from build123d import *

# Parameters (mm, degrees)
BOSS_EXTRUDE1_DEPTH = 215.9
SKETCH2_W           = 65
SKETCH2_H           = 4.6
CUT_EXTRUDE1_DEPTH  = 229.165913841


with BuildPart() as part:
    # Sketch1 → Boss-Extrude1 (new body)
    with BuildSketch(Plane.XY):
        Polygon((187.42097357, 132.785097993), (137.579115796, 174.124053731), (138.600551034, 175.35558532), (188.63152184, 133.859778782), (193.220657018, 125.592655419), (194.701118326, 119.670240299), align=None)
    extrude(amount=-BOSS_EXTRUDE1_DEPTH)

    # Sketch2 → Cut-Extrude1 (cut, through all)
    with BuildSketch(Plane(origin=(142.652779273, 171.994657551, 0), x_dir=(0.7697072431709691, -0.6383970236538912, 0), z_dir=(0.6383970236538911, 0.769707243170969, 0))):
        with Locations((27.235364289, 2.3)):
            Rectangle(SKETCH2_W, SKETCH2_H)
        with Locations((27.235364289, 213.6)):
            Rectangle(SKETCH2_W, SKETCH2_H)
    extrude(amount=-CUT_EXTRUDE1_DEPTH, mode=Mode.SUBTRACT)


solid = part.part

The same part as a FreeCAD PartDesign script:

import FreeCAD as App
import Part
import Sketcher
from FreeCAD import Vector
Q = App.Units.Quantity

doc = App.newDocument("Part")
params = doc.addObject("Spreadsheet::Sheet", "Params")
for row, (alias, value) in enumerate([
    ("sketch1_length", "15 mm"),
    ("sketch1_length2", "65 mm"),
    ("sketch1_length3", "1.6 mm"),
    ("pad1_length", "215.9 mm"),
    ("sketch2_width", "65 mm"),
    ("sketch2_height", "4.6 mm"),
], start=1):
    params.set(f"A{row}", alias)
    params.set(f"B{row}", "=" + value)
    params.setAlias(f"B{row}", alias)

body = doc.addObject("PartDesign::Body", "Body")

# Sketch on XY plane
sketch1 = body.newObject("Sketcher::SketchObject", "Sketch")
sketch1.AttachmentSupport = (doc.getObject("XY_Plane"), [""])
sketch1.MapMode = "FlatFace"
sketch1.addGeometry(Part.LineSegment(Vector(137.579116, 174.124054, 0), Vector(187.420974, 132.785098, 0)), False)
sketch1.addGeometry(Part.LineSegment(Vector(187.420974, 132.785098, 0), Vector(194.701118, 119.67024, 0)), False)
sketch1.addGeometry(Part.LineSegment(Vector(194.701118, 119.67024, 0), Vector(193.220657, 125.592655, 0)), False)
sketch1.addGeometry(Part.LineSegment(Vector(193.220657, 125.592655, 0), Vector(188.631522, 133.859779, 0)), False)
sketch1.addGeometry(Part.LineSegment(Vector(188.631522, 133.859779, 0), Vector(138.600551, 175.355585, 0)), False)
sketch1.addGeometry(Part.LineSegment(Vector(138.600551, 175.355585, 0), Vector(137.579116, 174.124054, 0)), False)
sketch1.addConstraint(Sketcher.Constraint("Coincident", 0, 2, 1, 1))
sketch1.addConstraint(Sketcher.Constraint("Coincident", 1, 2, 2, 1))
sketch1.addConstraint(Sketcher.Constraint("Coincident", 2, 2, 3, 1))
sketch1.addConstraint(Sketcher.Constraint("Coincident", 3, 2, 4, 1))
sketch1.addConstraint(Sketcher.Constraint("Coincident", 4, 2, 5, 1))
sketch1.addConstraint(Sketcher.Constraint("Coincident", 5, 2, 0, 1))
sketch1.addConstraint(Sketcher.Constraint("Parallel", 1, 3))
sketch1.addConstraint(Sketcher.Constraint("Parallel", 0, 4))
sketch1.addConstraint(Sketcher.Constraint("Perpendicular", 4, 5))
sketch1.addConstraint(Sketcher.Constraint("Distance", 1, Q("15 mm")))
sketch1.addConstraint(Sketcher.Constraint("Distance", 4, Q("65 mm")))
sketch1.addConstraint(Sketcher.Constraint("Distance", 5, Q("1.6 mm")))
sketch1.addConstraint(Sketcher.Constraint("DistanceY", 2, 2, 5, 2, Q("48.531398 mm")))
sketch1.addConstraint(Sketcher.Constraint("Distance", 2, Q("6.104651 mm")))
sketch1.addConstraint(Sketcher.Constraint("DistanceX", -1, 1, 1, 2, Q("194.701118 mm")))
sketch1.addConstraint(Sketcher.Constraint("DistanceY", -1, 1, 1, 2, Q("119.67024 mm")))
sketch1.addConstraint(Sketcher.Constraint("DistanceX", -1, 1, 3, 2, Q("188.631522 mm")))
sketch1.addConstraint(Sketcher.Constraint("DistanceY", -1, 1, 3, 2, Q("133.859779 mm")))
sketch1.setExpression("Constraints[9]", "Params.sketch1_length")
sketch1.setExpression("Constraints[10]", "Params.sketch1_length2")
sketch1.setExpression("Constraints[11]", "Params.sketch1_length3")
pad1 = body.newObject("PartDesign::Pad", "Pad")
pad1.Profile = sketch1
pad1.setExpression("Length", "Params.pad1_length")
pad1.Reversed = True

# Sketch on an angled plane
sketch2 = body.newObject("Sketcher::SketchObject", "Sketch001")
sketch2.Placement = App.Placement(Vector(142.652779, 171.994658, 0), App.Rotation(Vector(0.769707243, -0.638397024, 0), Vector(0, 0, -1), Vector(0.638397024, 0.769707243, 0), "ZXY"))
sketch2.addGeometry(Part.LineSegment(Vector(-5.264636, 4.6, 0), Vector(-5.264636, 0, 0)), False)
sketch2.addGeometry(Part.LineSegment(Vector(-5.264636, 0, 0), Vector(59.735364, 0, 0)), False)
sketch2.addGeometry(Part.LineSegment(Vector(59.735364, 0, 0), Vector(59.735364, 4.6, 0)), False)
sketch2.addGeometry(Part.LineSegment(Vector(59.735364, 4.6, 0), Vector(-5.264636, 4.6, 0)), False)
sketch2.addGeometry(Part.LineSegment(Vector(-5.264636, 215.9, 0), Vector(-5.264636, 211.3, 0)), False)
sketch2.addGeometry(Part.LineSegment(Vector(-5.264636, 211.3, 0), Vector(59.735364, 211.3, 0)), False)
sketch2.addGeometry(Part.LineSegment(Vector(59.735364, 211.3, 0), Vector(59.735364, 215.9, 0)), False)
sketch2.addGeometry(Part.LineSegment(Vector(59.735364, 215.9, 0), Vector(-5.264636, 215.9, 0)), False)
sketch2.addConstraint(Sketcher.Constraint("Coincident", 0, 2, 1, 1))
sketch2.addConstraint(Sketcher.Constraint("Coincident", 1, 2, 2, 1))
sketch2.addConstraint(Sketcher.Constraint("Coincident", 2, 2, 3, 1))
sketch2.addConstraint(Sketcher.Constraint("Coincident", 3, 2, 0, 1))
sketch2.addConstraint(Sketcher.Constraint("Coincident", 4, 2, 5, 1))
sketch2.addConstraint(Sketcher.Constraint("Coincident", 5, 2, 6, 1))
sketch2.addConstraint(Sketcher.Constraint("Coincident", 6, 2, 7, 1))
sketch2.addConstraint(Sketcher.Constraint("Coincident", 7, 2, 4, 1))
sketch2.addConstraint(Sketcher.Constraint("Vertical", 0))
sketch2.addConstraint(Sketcher.Constraint("Horizontal", 1))
sketch2.addConstraint(Sketcher.Constraint("Vertical", 2))
sketch2.addConstraint(Sketcher.Constraint("Horizontal", 3))
sketch2.addConstraint(Sketcher.Constraint("Vertical", 4))
sketch2.addConstraint(Sketcher.Constraint("Horizontal", 5))
sketch2.addConstraint(Sketcher.Constraint("Vertical", 6))
sketch2.addConstraint(Sketcher.Constraint("Horizontal", 7))
sketch2.addConstraint(Sketcher.Constraint("PointOnObject", 0, 2, -1))
sketch2.addConstraint(Sketcher.Constraint("Vertical", 3, 2, 4, 2))
sketch2.addConstraint(Sketcher.Constraint("Vertical", 2, 2, 5, 2))
sketch2.addConstraint(Sketcher.Constraint("Equal", 2, 4))
sketch2.addConstraint(Sketcher.Constraint("DistanceX", 1, 1, 1, 2, Q("65 mm")))
sketch2.addConstraint(Sketcher.Constraint("DistanceY", 0, 2, 0, 1, Q("4.6 mm")))
sketch2.addConstraint(Sketcher.Constraint("DistanceY", -1, 1, 4, 2, Q("211.3 mm")))
sketch2.addConstraint(Sketcher.Constraint("DistanceX", 0, 2, -1, 1, Q("5.264636 mm")))
sketch2.setExpression("Constraints[20]", "Params.sketch2_width")
sketch2.setExpression("Constraints[21]", "Params.sketch2_height")
pocket1 = body.newObject("PartDesign::Pocket", "Pocket")
pocket1.Profile = sketch2
pocket1.Type = "ThroughAll"

doc.recompute()
